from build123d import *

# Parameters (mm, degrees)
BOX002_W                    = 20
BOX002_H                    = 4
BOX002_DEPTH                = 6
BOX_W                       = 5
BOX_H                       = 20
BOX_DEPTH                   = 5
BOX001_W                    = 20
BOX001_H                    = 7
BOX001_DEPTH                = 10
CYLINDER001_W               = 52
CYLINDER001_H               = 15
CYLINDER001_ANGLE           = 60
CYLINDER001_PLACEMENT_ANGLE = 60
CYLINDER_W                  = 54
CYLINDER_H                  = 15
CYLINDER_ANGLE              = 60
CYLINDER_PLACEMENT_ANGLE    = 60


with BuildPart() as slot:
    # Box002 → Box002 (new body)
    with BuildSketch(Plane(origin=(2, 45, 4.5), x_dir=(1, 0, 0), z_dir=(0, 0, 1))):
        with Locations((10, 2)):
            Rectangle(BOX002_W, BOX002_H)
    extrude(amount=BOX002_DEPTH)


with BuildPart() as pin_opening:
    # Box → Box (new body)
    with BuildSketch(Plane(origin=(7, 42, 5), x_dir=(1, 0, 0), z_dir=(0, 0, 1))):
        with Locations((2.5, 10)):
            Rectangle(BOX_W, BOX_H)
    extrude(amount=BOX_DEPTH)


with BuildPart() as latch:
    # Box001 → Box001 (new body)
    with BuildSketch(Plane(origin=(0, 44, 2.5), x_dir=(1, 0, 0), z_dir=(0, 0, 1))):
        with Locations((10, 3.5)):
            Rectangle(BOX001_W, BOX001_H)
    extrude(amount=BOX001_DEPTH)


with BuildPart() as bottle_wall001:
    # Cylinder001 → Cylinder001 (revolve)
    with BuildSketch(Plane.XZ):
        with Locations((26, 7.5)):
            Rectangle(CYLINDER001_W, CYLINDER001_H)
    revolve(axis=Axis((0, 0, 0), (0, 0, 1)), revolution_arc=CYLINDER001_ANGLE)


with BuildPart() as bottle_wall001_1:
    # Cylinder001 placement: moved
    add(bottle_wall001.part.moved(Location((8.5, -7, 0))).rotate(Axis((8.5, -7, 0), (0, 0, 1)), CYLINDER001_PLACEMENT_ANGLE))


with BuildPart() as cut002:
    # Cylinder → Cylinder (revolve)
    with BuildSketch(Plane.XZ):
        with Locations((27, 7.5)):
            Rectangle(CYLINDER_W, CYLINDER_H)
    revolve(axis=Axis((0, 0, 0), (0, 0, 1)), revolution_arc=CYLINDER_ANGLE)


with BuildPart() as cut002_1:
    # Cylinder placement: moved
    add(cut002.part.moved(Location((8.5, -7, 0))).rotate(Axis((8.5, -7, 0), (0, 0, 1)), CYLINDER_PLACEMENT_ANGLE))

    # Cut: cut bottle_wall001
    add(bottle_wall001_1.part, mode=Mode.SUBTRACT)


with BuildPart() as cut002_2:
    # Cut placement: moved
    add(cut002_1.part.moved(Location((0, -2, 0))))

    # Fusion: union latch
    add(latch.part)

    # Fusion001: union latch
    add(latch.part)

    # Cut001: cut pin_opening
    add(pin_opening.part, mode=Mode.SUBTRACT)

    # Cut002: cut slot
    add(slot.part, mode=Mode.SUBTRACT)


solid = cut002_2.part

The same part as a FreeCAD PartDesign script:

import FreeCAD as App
import Part
import Sketcher
Q = App.Units.Quantity


def add_polygon(sketch, points):
    """Adds a closed chain of lines whose ends are joined by coincident constraints."""
    first, n = sketch.GeometryCount, len(points)
    for a, b in zip(points, points[1:] + points[:1]):
        sketch.addGeometry(Part.LineSegment(App.Vector(*a, 0), App.Vector(*b, 0)), False)
    for i in range(n):
        sketch.addConstraint(Sketcher.Constraint("Coincident", first + i, 2, first + (i + 1) % n, 1))

doc = App.newDocument("Part")
body = doc.addObject("PartDesign::Body", "Body")

sketch1 = body.newObject("Sketcher::SketchObject", "Sketch")
sketch1.AttachmentSupport = (doc.getObject("XY_Plane"), [""])
sketch1.MapMode = "FlatFace"
sketch1.AttachmentOffset = App.Placement(App.Vector(0, 0, 4.5), App.Rotation())
add_polygon(sketch1, [(2, 49), (2, 45), (22, 45), (22, 49)])
sketch1.addConstraint([
    Sketcher.Constraint("Vertical", 0),
    Sketcher.Constraint("Horizontal", 1),
    Sketcher.Constraint("Vertical", 2),
    Sketcher.Constraint("Horizontal", 3),
    Sketcher.Constraint("DistanceX", 1, 1, 1, 2, Q("20 mm")),
    Sketcher.Constraint("DistanceY", 0, 2, 0, 1, Q("4 mm")),
    Sketcher.Constraint("DistanceX", -1, 1, 0, 2, Q("2 mm")),
    Sketcher.Constraint("DistanceY", -1, 1, 0, 2, Q("45 mm")),
])
pad1 = body.newObject("PartDesign::Pad", "Pad")
pad1.Profile = sketch1
pad1.Length = 6
body2 = doc.addObject("PartDesign::Body", "Body001")

sketch2 = body2.newObject("Sketcher::SketchObject", "Sketch001")
sketch2.AttachmentSupport = (doc.getObject("XY_Plane001"), [""])
sketch2.MapMode = "FlatFace"
sketch2.AttachmentOffset = App.Placement(App.Vector(0, 0, 5), App.Rotation())
add_polygon(sketch2, [(7, 62), (7, 42), (12, 42), (12, 62)])
sketch2.addConstraint([
    Sketcher.Constraint("Vertical", 0),
    Sketcher.Constraint("Horizontal", 1),
    Sketcher.Constraint("Vertical", 2),
    Sketcher.Constraint("Horizontal", 3),
    Sketcher.Constraint("DistanceX", 1, 1, 1, 2, Q("5 mm")),
    Sketcher.Constraint("DistanceY", 0, 2, 0, 1, Q("20 mm")),
    Sketcher.Constraint("DistanceX", -1, 1, 0, 2, Q("7 mm")),
    Sketcher.Constraint("DistanceY", -1, 1, 0, 2, Q("42 mm")),
])
pad2 = body2.newObject("PartDesign::Pad", "Pad001")
pad2.Profile = sketch2
pad2.Length = 5
body3 = doc.addObject("PartDesign::Body", "Body002")

sketch3 = body3.newObject("Sketcher::SketchObject", "Sketch002")
sketch3.AttachmentSupport = (doc.getObject("XY_Plane002"), [""])
sketch3.MapMode = "FlatFace"
sketch3.AttachmentOffset = App.Placement(App.Vector(0, 0, 2.5), App.Rotation())
add_polygon(sketch3, [(0, 51), (0, 44), (20, 44), (20, 51)])
sketch3.addConstraint([
    Sketcher.Constraint("Vertical", 0),
    Sketcher.Constraint("Horizontal", 1),
    Sketcher.Constraint("Vertical", 2),
    Sketcher.Constraint("Horizontal", 3),
    Sketcher.Constraint("PointOnObject", 0, 2, -2),
    Sketcher.Constraint("DistanceX", 1, 1, 1, 2, Q("20 mm")),
    Sketcher.Constraint("DistanceY", 0, 2, 0, 1, Q("7 mm")),
    Sketcher.Constraint("DistanceY", -1, 1, 0, 2, Q("44 mm")),
])
pad3 = body3.newObject("PartDesign::Pad", "Pad002")
pad3.Profile = sketch3
pad3.Length = 10
body4 = doc.addObject("PartDesign::Body", "Body003")

sketch4 = body4.newObject("Sketcher::SketchObject", "Sketch003")
sketch4.AttachmentSupport = (doc.getObject("XZ_Plane003"), [""])
sketch4.MapMode = "FlatFace"
add_polygon(sketch4, [(0, 15), (0, 0), (52, 0), (52, 15)])
sketch4.addConstraint([
    Sketcher.Constraint("Vertical", 0),
    Sketcher.Constraint("Horizontal", 1),
    Sketcher.Constraint("Vertical", 2),
    Sketcher.Constraint("Horizontal", 3),
    Sketcher.Constraint("Coincident", 0, 2, -1, 1),
    Sketcher.Constraint("DistanceX", 1, 1, 1, 2, Q("52 mm")),
    Sketcher.Constraint("DistanceY", 0, 2, 0, 1, Q("15 mm")),
])
revolution = body4.newObject("PartDesign::Revolution", "Revolution")
revolution.Profile = sketch4
revolution.ReferenceAxis = (sketch4, ["V_Axis"])
revolution.Angle = 60
body5 = doc.addObject("PartDesign::Body", "Body004")
doc.recompute()

body4.Placement = App.Placement(App.Vector(8.5, -7, 0), App.Rotation(App.Vector(0, 0, 1), 60))
boolean = body5.newObject("PartDesign::Boolean", "Boolean")
boolean.Type = "Fuse"
boolean.addObjects([body4])
body6 = doc.addObject("PartDesign::Body", "Body005")

sketch5 = body6.newObject("Sketcher::SketchObject", "Sketch004")
sketch5.AttachmentSupport = (doc.getObject("XZ_Plane005"), [""])
sketch5.MapMode = "FlatFace"
add_polygon(sketch5, [(0, 15), (0, 0), (54, 0), (54, 15)])
sketch5.addConstraint([
    Sketcher.Constraint("Vertical", 0),
    Sketcher.Constraint("Horizontal", 1),
    Sketcher.Constraint("Vertical", 2),
    Sketcher.Constraint("Horizontal", 3),
    Sketcher.Constraint("Coincident", 0, 2, -1, 1),
    Sketcher.Constraint("DistanceX", 1, 1, 1, 2, Q("54 mm")),
    Sketcher.Constraint("DistanceY", 0, 2, 0, 1, Q("15 mm")),
])
revolution2 = body6.newObject("PartDesign::Revolution", "Revolution001")
revolution2.Profile = sketch5
revolution2.ReferenceAxis = (sketch5, ["V_Axis"])
revolution2.Angle = 60
body7 = doc.addObject("PartDesign::Body", "Body006")
doc.recompute()

body6.Placement = App.Placement(App.Vector(8.5, -7, 0), App.Rotation(App.Vector(0, 0, 1), 60))
boolean2 = body7.newObject("PartDesign::Boolean", "Boolean001")
boolean2.Type = "Fuse"
boolean2.addObjects([body6])
doc.recompute()

boolean3 = body7.newObject("PartDesign::Boolean", "Boolean002")
boolean3.Type = "Cut"
boolean3.addObjects([body5])
body8 = doc.addObject("PartDesign::Body", "Body007")
doc.recompute()

body7.Placement = App.Placement(App.Vector(0, -2, 0), App.Rotation(App.Vector(0, 0, 1), 0))
boolean4 = body8.newObject("PartDesign::Boolean", "Boolean003")
boolean4.Type = "Fuse"
boolean4.addObjects([body7])
doc.recompute()

body9 = doc.addObject("PartDesign::Body", "Body008")
body9.BaseFeature = body3
boolean5 = body8.newObject("PartDesign::Boolean", "Boolean004")
boolean5.Type = "Fuse"
boolean5.addObjects([body9])
doc.recompute()

boolean6 = body8.newObject("PartDesign::Boolean", "Boolean005")
boolean6.Type = "Fuse"
boolean6.addObjects([body3])
doc.recompute()

boolean7 = body8.newObject("PartDesign::Boolean", "Boolean006")
boolean7.Type = "Cut"
boolean7.addObjects([body2])
doc.recompute()

boolean8 = body8.newObject("PartDesign::Boolean", "Boolean007")
boolean8.Type = "Cut"
boolean8.addObjects([body])

doc.recompute()
